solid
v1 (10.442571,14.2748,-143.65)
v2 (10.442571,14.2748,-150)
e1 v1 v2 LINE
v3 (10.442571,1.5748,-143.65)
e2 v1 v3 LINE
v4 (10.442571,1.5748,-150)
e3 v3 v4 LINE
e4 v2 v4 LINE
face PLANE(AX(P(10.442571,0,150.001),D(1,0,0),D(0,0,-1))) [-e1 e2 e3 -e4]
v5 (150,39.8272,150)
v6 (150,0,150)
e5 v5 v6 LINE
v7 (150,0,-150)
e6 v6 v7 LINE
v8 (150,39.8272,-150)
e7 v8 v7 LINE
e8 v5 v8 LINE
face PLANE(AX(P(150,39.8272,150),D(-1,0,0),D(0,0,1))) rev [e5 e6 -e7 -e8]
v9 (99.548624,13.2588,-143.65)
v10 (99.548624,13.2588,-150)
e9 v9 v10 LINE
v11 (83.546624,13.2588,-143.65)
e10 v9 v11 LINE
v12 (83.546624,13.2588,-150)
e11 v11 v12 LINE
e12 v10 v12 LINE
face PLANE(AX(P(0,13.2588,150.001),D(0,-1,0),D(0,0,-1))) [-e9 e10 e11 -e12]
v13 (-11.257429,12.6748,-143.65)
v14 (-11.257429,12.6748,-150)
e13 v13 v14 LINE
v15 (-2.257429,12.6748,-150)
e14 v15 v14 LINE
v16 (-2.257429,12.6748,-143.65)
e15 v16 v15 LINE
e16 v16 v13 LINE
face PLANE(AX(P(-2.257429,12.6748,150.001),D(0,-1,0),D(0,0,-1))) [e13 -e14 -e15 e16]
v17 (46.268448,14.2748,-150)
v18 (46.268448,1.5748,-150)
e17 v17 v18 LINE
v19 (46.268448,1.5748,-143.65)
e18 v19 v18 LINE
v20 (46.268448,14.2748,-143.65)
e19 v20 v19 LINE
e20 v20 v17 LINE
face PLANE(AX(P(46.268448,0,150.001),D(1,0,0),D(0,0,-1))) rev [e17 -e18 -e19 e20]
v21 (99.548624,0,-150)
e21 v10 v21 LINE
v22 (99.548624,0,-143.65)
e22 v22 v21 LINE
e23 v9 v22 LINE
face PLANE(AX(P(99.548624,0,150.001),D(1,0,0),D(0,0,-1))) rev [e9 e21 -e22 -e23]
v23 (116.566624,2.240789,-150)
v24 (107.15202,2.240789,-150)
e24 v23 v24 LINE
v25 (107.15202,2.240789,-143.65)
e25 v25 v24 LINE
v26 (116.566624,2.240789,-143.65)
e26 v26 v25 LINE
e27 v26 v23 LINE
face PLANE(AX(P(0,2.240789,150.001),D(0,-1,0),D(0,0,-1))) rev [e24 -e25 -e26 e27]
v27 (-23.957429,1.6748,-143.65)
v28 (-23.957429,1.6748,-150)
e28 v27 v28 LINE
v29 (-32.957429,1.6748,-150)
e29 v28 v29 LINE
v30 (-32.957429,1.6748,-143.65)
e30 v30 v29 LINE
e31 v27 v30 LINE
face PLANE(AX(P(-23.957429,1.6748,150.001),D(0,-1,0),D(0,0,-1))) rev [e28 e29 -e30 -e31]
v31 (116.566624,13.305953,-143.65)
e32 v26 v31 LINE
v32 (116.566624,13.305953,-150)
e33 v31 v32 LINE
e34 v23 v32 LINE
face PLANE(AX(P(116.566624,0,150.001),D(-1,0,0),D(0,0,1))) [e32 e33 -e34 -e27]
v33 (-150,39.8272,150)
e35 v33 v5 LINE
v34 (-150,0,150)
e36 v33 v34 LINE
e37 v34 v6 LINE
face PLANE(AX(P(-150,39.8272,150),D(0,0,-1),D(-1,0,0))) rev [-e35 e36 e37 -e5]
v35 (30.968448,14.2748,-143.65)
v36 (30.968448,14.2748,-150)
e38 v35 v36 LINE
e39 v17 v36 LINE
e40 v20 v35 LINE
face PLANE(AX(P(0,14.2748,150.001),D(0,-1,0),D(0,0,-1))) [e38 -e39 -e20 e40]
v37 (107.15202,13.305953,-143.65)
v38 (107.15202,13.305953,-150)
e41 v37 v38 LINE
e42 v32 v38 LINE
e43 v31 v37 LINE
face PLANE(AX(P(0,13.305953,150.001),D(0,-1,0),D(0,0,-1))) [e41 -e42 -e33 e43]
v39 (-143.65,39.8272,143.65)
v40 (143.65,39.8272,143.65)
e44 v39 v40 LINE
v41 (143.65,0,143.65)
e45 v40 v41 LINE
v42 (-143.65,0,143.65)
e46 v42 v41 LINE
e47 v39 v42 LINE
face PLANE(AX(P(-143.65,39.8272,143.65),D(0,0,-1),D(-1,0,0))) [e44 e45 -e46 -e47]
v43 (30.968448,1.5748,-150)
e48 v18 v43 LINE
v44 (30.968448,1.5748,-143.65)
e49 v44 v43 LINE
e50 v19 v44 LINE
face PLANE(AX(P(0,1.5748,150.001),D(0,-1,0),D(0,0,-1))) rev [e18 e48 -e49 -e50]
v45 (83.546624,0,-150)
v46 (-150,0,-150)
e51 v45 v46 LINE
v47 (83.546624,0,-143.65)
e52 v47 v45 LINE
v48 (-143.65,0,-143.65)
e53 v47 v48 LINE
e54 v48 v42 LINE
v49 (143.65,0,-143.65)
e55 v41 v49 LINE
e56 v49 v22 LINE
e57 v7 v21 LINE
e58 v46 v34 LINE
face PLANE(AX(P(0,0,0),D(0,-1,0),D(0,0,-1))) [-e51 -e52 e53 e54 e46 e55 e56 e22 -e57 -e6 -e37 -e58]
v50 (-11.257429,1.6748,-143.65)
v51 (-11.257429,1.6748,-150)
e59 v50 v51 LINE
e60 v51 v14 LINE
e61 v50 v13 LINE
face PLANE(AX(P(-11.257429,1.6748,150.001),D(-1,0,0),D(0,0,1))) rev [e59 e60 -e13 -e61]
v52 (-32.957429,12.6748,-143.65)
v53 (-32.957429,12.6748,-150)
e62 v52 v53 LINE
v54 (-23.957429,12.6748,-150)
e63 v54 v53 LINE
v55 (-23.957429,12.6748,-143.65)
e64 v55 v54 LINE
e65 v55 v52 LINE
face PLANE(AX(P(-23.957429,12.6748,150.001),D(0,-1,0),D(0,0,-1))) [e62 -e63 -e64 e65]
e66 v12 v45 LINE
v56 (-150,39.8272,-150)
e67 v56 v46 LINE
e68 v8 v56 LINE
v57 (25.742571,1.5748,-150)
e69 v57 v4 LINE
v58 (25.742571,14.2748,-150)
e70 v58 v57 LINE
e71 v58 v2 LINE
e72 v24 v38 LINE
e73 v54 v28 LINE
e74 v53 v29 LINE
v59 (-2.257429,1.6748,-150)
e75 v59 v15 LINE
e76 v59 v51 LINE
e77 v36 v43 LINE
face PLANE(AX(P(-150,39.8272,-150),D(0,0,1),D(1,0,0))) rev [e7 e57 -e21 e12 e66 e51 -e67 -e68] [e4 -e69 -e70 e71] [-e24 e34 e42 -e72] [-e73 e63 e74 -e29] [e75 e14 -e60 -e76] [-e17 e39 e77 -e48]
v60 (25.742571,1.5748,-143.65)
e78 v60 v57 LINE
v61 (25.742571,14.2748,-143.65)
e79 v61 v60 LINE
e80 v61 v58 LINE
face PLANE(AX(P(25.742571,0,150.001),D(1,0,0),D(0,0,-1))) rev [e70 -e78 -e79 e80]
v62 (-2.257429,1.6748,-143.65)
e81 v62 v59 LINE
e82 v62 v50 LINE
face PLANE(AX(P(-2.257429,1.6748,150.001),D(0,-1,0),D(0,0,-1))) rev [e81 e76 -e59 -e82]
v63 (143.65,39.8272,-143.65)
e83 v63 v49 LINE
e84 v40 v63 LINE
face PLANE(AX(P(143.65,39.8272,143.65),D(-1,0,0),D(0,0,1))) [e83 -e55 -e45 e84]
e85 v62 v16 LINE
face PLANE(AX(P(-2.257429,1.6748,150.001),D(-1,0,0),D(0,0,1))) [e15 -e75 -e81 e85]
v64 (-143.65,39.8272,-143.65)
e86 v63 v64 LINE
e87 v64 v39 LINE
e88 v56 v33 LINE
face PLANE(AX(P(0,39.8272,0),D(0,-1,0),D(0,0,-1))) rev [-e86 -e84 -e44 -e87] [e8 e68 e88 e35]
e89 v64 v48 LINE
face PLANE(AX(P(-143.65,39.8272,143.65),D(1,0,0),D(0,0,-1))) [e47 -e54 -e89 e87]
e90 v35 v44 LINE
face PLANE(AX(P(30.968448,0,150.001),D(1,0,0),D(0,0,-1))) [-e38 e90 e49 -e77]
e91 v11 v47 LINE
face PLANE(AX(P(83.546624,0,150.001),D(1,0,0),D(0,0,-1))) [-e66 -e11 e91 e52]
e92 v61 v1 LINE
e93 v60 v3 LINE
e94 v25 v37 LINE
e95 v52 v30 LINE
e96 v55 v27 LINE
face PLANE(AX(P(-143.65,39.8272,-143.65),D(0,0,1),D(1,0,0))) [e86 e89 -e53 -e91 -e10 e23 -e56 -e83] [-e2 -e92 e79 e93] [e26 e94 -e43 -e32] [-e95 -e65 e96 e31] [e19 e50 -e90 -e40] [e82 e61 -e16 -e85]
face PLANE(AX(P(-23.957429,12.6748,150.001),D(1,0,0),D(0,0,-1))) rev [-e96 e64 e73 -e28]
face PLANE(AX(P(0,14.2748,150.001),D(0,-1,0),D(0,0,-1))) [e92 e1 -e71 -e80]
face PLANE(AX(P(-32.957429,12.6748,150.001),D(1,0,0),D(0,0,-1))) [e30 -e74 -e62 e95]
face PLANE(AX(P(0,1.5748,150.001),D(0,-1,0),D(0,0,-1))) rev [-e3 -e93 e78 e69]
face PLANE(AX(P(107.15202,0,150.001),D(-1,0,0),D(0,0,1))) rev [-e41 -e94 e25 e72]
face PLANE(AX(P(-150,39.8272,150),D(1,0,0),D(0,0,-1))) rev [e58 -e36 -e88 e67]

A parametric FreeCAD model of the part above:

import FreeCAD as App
import Part
import Sketcher

V = App.Vector


def add_polygon(sketch, points):
    """Adds a closed chain of lines whose ends are joined by coincident constraints."""
    first, n = sketch.GeometryCount, len(points)
    for a, b in zip(points, points[1:] + points[:1]):
        sketch.addGeometry(Part.LineSegment(App.Vector(*a, 0), App.Vector(*b, 0)), False)
    for i in range(n):
        sketch.addConstraint(Sketcher.Constraint("Coincident", first + i, 2, first + (i + 1) % n, 1))

doc = App.newDocument("Part")
params = doc.addObject("Spreadsheet::Sheet", "Params")
for row, (alias, value) in enumerate([
    ("sketch1_width", "300 mm"),
    ("sketch1_width2", "287.3 mm"),
    ("pad1_length", "39.8272 mm"),
    ("sketch4_width", "15.3 mm"),
    ("sketch4_height", "12.7 mm"),
    ("sketch5_width", "15.3 mm"),
    ("sketch5_height", "12.7 mm"),
    ("sketch6_width", "9 mm"),
    ("sketch6_height", "11 mm"),
    ("sketch7_width", "9 mm"),
    ("sketch7_height", "11 mm"),
], start=1):
    params.set(f"A{row}", alias)
    params.set(f"B{row}", "=" + value)
    params.setAlias(f"B{row}", alias)

body = doc.addObject("PartDesign::Body", "Body")

sketch1 = body.newObject("Sketcher::SketchObject", "Sketch")
sketch1.AttachmentSupport = (doc.getObject("XZ_Plane"), [""])
sketch1.MapMode = "FlatFace"
add_polygon(sketch1, [(-150, -150), (-150, 150), (150, 150), (150, -150)])
add_polygon(sketch1, [(144, 144), (-144, 144), (-144, -144), (144, -144)])
sketch1.addConstraint([
    Sketcher.Constraint("Vertical", 0),
    Sketcher.Constraint("Horizontal", 1),
    Sketcher.Constraint("Vertical", 2),
    Sketcher.Constraint("Horizontal", 3),
    Sketcher.Constraint("Horizontal", 4),
    Sketcher.Constraint("Vertical", 5),
    Sketcher.Constraint("Horizontal", 6),
    Sketcher.Constraint("Vertical", 7),
    Sketcher.Constraint("Symmetric", 0, 2, 2, 2, -1, 1),
    Sketcher.Constraint("Symmetric", 4, 2, 6, 2, -1, 1),
    Sketcher.Constraint("Equal", 3, 0),
    Sketcher.Constraint("Equal", 6, 5),
    Sketcher.Constraint("DistanceX", 1, 1, 1, 2, 300.0),
    Sketcher.Constraint("DistanceX", 4, 2, 4, 1, 287.3),
])
sketch1.setExpression("Constraints[20]", "Params.sketch1_width")
sketch1.setExpression("Constraints[21]", "Params.sketch1_width2")
pad1 = body.newObject("PartDesign::Pad", "Pad")
pad1.Profile = sketch1
pad1.setExpression("Length", "Params.pad1_length")
pad1.Reversed = True

sketch2 = body.newObject("Sketcher::SketchObject", "Sketch001")
sketch2.AttachmentSupport = (doc.getObject("XY_Plane"), [""])
sketch2.MapMode = "FlatFace"
sketch2.AttachmentOffset = App.Placement(V(0, 0, -150), App.Rotation())
add_polygon(sketch2, [(117, 13), (117, 2), (107, 2), (107, 13)])
sketch2.addConstraint([
    Sketcher.Constraint("Vertical", 0),
    Sketcher.Constraint("Horizontal", 1),
    Sketcher.Constraint("Vertical", 2),
    Sketcher.Constraint("Horizontal", 3),
    Sketcher.Constraint("DistanceX", 1, 2, 1, 1, 9.414604),
    Sketcher.Constraint("DistanceY", 0, 2, 0, 1, 11.065164),
    Sketcher.Constraint("DistanceY", -1, 1, 0, 2, 2.240789),
    Sketcher.Constraint("DistanceX", -1, 1, 1, 2, 107.15202),
])
pocket1 = body.newObject("PartDesign::Pocket", "Pocket")
pocket1.Profile = sketch2
pocket1.Type = "UpToFirst"
pocket1.Reversed = True

sketch3 = body.newObject("Sketcher::SketchObject", "Sketch002")
sketch3.AttachmentSupport = (doc.getObject("XY_Plane"), [""])
sketch3.MapMode = "FlatFace"
sketch3.AttachmentOffset = App.Placement(V(0, 0, -150), App.Rotation())
add_polygon(sketch3, [(100, 13), (100, 0), (84, 0), (84, 13)])
sketch3.addConstraint([
    Sketcher.Constraint("Vertical", 0),
    Sketcher.Constraint("Horizontal", 1),
    Sketcher.Constraint("Vertical", 2),
    Sketcher.Constraint("Horizontal", 3),
    Sketcher.Constraint("DistanceX", 1, 2, 1, 1, 16.002),
    Sketcher.Constraint("DistanceY", 0, 2, 0, 1, 13.335),
    Sketcher.Constraint("DistanceY", 0, 2, -1, 1, 0.0762),
    Sketcher.Constraint("DistanceX", -1, 1, 0, 2, 99.548624),
])
pocket2 = body.newObject("PartDesign::Pocket", "Pocket001")
pocket2.Profile = sketch3
pocket2.Type = "UpToFirst"
pocket2.Reversed = True

sketch4 = body.newObject("Sketcher::SketchObject", "Sketch003")
sketch4.AttachmentSupport = (doc.getObject("XY_Plane"), [""])
sketch4.MapMode = "FlatFace"
sketch4.AttachmentOffset = App.Placement(V(0, 0, -150), App.Rotation())
add_polygon(sketch4, [(46, 14), (46, 2), (31, 2), (31, 14)])
sketch4.addConstraint([
    Sketcher.Constraint("Vertical", 0),
    Sketcher.Constraint("Horizontal", 1),
    Sketcher.Constraint("Vertical", 2),
    Sketcher.Constraint("Horizontal", 3),
    Sketcher.Constraint("DistanceX", 1, 2, 1, 1, 15.3),
    Sketcher.Constraint("DistanceY", 0, 2, 0, 1, 12.7),
    Sketcher.Constraint("DistanceY", -1, 1, 0, 2, 1.5748),
    Sketcher.Constraint("DistanceX", -1, 1, 0, 2, 46.268448),
])
sketch4.setExpression("Constraints[8]", "Params.sketch4_width")
sketch4.setExpression("Constraints[9]", "Params.sketch4_height")
pocket3 = body.newObject("PartDesign::Pocket", "Pocket002")
pocket3.Profile = sketch4
pocket3.Type = "UpToFirst"
pocket3.Reversed = True

sketch5 = body.newObject("Sketcher::SketchObject", "Sketch004")
sketch5.AttachmentSupport = (doc.getObject("XY_Plane"), [""])
sketch5.MapMode = "FlatFace"
sketch5.AttachmentOffset = App.Placement(V(0, 0, -150), App.Rotation())
add_polygon(sketch5, [(26, 14), (26, 2), (10, 2), (10, 14)])
sketch5.addConstraint([
    Sketcher.Constraint("Vertical", 0),
    Sketcher.Constraint("Horizontal", 1),
    Sketcher.Constraint("Vertical", 2),
    Sketcher.Constraint("Horizontal", 3),
    Sketcher.Constraint("DistanceX", 1, 2, 1, 1, 15.3),
    Sketcher.Constraint("DistanceY", 0, 2, 0, 1, 12.7),
    Sketcher.Constraint("DistanceY", -1, 1, 0, 2, 1.5748),
    Sketcher.Constraint("DistanceX", -1, 1, 0, 2, 25.742571),
])
sketch5.setExpression("Constraints[8]", "Params.sketch5_width")
sketch5.setExpression("Constraints[9]", "Params.sketch5_height")
pocket4 = body.newObject("PartDesign::Pocket", "Pocket003")
pocket4.Profile = sketch5
pocket4.Type = "UpToFirst"
pocket4.Reversed = True

sketch6 = body.newObject("Sketcher::SketchObject", "Sketch005")
sketch6.AttachmentSupport = (doc.getObject("XY_Plane"), [""])
sketch6.MapMode = "FlatFace"
sketch6.AttachmentOffset = App.Placement(V(0, 0, -150), App.Rotation())
add_polygon(sketch6, [(-2, 13), (-2, 2), (-11, 2), (-11, 13)])
sketch6.addConstraint([
    Sketcher.Constraint("Vertical", 0),
    Sketcher.Constraint("Horizontal", 1),
    Sketcher.Constraint("Vertical", 2),
    Sketcher.Constraint("Horizontal", 3),
    Sketcher.Constraint("DistanceX", 1, 2, 1, 1, 9.0),
    Sketcher.Constraint("DistanceY", 0, 2, 0, 1, 11.0),
    Sketcher.Constraint("DistanceY", -1, 1, 0, 2, 1.6748),
    Sketcher.Constraint("DistanceX", 0, 2, -1, 1, 2.257429),
])
sketch6.setExpression("Constraints[8]", "Params.sketch6_width")
sketch6.setExpression("Constraints[9]", "Params.sketch6_height")
pocket5 = body.newObject("PartDesign::Pocket", "Pocket004")
pocket5.Profile = sketch6
pocket5.Type = "UpToFirst"
pocket5.Reversed = True

sketch7 = body.newObject("Sketcher::SketchObject", "Sketch006")
sketch7.AttachmentSupport = (doc.getObject("XY_Plane"), [""])
sketch7.MapMode = "FlatFace"
sketch7.AttachmentOffset = App.Placement(V(0, 0, -150), App.Rotation())
add_polygon(sketch7, [(-24, 13), (-24, 2), (-33, 2), (-33, 13)])
sketch7.addConstraint([
    Sketcher.Constraint("Vertical", 0),
    Sketcher.Constraint("Horizontal", 1),
    Sketcher.Constraint("Vertical", 2),
    Sketcher.Constraint("Horizontal", 3),
    Sketcher.Constraint("DistanceX", 1, 2, 1, 1, 9.0),
    Sketcher.Constraint("DistanceY", 0, 2, 0, 1, 11.0),
    Sketcher.Constraint("DistanceY", -1, 1, 0, 2, 1.6748),
    Sketcher.Constraint("DistanceX", 0, 2, -1, 1, 23.957429),
])
sketch7.setExpression("Constraints[8]", "Params.sketch7_width")
sketch7.setExpression("Constraints[9]", "Params.sketch7_height")
pocket6 = body.newObject("PartDesign::Pocket", "Pocket005")
pocket6.Profile = sketch7
pocket6.Type = "UpToFirst"
pocket6.Reversed = True

doc.recompute()
